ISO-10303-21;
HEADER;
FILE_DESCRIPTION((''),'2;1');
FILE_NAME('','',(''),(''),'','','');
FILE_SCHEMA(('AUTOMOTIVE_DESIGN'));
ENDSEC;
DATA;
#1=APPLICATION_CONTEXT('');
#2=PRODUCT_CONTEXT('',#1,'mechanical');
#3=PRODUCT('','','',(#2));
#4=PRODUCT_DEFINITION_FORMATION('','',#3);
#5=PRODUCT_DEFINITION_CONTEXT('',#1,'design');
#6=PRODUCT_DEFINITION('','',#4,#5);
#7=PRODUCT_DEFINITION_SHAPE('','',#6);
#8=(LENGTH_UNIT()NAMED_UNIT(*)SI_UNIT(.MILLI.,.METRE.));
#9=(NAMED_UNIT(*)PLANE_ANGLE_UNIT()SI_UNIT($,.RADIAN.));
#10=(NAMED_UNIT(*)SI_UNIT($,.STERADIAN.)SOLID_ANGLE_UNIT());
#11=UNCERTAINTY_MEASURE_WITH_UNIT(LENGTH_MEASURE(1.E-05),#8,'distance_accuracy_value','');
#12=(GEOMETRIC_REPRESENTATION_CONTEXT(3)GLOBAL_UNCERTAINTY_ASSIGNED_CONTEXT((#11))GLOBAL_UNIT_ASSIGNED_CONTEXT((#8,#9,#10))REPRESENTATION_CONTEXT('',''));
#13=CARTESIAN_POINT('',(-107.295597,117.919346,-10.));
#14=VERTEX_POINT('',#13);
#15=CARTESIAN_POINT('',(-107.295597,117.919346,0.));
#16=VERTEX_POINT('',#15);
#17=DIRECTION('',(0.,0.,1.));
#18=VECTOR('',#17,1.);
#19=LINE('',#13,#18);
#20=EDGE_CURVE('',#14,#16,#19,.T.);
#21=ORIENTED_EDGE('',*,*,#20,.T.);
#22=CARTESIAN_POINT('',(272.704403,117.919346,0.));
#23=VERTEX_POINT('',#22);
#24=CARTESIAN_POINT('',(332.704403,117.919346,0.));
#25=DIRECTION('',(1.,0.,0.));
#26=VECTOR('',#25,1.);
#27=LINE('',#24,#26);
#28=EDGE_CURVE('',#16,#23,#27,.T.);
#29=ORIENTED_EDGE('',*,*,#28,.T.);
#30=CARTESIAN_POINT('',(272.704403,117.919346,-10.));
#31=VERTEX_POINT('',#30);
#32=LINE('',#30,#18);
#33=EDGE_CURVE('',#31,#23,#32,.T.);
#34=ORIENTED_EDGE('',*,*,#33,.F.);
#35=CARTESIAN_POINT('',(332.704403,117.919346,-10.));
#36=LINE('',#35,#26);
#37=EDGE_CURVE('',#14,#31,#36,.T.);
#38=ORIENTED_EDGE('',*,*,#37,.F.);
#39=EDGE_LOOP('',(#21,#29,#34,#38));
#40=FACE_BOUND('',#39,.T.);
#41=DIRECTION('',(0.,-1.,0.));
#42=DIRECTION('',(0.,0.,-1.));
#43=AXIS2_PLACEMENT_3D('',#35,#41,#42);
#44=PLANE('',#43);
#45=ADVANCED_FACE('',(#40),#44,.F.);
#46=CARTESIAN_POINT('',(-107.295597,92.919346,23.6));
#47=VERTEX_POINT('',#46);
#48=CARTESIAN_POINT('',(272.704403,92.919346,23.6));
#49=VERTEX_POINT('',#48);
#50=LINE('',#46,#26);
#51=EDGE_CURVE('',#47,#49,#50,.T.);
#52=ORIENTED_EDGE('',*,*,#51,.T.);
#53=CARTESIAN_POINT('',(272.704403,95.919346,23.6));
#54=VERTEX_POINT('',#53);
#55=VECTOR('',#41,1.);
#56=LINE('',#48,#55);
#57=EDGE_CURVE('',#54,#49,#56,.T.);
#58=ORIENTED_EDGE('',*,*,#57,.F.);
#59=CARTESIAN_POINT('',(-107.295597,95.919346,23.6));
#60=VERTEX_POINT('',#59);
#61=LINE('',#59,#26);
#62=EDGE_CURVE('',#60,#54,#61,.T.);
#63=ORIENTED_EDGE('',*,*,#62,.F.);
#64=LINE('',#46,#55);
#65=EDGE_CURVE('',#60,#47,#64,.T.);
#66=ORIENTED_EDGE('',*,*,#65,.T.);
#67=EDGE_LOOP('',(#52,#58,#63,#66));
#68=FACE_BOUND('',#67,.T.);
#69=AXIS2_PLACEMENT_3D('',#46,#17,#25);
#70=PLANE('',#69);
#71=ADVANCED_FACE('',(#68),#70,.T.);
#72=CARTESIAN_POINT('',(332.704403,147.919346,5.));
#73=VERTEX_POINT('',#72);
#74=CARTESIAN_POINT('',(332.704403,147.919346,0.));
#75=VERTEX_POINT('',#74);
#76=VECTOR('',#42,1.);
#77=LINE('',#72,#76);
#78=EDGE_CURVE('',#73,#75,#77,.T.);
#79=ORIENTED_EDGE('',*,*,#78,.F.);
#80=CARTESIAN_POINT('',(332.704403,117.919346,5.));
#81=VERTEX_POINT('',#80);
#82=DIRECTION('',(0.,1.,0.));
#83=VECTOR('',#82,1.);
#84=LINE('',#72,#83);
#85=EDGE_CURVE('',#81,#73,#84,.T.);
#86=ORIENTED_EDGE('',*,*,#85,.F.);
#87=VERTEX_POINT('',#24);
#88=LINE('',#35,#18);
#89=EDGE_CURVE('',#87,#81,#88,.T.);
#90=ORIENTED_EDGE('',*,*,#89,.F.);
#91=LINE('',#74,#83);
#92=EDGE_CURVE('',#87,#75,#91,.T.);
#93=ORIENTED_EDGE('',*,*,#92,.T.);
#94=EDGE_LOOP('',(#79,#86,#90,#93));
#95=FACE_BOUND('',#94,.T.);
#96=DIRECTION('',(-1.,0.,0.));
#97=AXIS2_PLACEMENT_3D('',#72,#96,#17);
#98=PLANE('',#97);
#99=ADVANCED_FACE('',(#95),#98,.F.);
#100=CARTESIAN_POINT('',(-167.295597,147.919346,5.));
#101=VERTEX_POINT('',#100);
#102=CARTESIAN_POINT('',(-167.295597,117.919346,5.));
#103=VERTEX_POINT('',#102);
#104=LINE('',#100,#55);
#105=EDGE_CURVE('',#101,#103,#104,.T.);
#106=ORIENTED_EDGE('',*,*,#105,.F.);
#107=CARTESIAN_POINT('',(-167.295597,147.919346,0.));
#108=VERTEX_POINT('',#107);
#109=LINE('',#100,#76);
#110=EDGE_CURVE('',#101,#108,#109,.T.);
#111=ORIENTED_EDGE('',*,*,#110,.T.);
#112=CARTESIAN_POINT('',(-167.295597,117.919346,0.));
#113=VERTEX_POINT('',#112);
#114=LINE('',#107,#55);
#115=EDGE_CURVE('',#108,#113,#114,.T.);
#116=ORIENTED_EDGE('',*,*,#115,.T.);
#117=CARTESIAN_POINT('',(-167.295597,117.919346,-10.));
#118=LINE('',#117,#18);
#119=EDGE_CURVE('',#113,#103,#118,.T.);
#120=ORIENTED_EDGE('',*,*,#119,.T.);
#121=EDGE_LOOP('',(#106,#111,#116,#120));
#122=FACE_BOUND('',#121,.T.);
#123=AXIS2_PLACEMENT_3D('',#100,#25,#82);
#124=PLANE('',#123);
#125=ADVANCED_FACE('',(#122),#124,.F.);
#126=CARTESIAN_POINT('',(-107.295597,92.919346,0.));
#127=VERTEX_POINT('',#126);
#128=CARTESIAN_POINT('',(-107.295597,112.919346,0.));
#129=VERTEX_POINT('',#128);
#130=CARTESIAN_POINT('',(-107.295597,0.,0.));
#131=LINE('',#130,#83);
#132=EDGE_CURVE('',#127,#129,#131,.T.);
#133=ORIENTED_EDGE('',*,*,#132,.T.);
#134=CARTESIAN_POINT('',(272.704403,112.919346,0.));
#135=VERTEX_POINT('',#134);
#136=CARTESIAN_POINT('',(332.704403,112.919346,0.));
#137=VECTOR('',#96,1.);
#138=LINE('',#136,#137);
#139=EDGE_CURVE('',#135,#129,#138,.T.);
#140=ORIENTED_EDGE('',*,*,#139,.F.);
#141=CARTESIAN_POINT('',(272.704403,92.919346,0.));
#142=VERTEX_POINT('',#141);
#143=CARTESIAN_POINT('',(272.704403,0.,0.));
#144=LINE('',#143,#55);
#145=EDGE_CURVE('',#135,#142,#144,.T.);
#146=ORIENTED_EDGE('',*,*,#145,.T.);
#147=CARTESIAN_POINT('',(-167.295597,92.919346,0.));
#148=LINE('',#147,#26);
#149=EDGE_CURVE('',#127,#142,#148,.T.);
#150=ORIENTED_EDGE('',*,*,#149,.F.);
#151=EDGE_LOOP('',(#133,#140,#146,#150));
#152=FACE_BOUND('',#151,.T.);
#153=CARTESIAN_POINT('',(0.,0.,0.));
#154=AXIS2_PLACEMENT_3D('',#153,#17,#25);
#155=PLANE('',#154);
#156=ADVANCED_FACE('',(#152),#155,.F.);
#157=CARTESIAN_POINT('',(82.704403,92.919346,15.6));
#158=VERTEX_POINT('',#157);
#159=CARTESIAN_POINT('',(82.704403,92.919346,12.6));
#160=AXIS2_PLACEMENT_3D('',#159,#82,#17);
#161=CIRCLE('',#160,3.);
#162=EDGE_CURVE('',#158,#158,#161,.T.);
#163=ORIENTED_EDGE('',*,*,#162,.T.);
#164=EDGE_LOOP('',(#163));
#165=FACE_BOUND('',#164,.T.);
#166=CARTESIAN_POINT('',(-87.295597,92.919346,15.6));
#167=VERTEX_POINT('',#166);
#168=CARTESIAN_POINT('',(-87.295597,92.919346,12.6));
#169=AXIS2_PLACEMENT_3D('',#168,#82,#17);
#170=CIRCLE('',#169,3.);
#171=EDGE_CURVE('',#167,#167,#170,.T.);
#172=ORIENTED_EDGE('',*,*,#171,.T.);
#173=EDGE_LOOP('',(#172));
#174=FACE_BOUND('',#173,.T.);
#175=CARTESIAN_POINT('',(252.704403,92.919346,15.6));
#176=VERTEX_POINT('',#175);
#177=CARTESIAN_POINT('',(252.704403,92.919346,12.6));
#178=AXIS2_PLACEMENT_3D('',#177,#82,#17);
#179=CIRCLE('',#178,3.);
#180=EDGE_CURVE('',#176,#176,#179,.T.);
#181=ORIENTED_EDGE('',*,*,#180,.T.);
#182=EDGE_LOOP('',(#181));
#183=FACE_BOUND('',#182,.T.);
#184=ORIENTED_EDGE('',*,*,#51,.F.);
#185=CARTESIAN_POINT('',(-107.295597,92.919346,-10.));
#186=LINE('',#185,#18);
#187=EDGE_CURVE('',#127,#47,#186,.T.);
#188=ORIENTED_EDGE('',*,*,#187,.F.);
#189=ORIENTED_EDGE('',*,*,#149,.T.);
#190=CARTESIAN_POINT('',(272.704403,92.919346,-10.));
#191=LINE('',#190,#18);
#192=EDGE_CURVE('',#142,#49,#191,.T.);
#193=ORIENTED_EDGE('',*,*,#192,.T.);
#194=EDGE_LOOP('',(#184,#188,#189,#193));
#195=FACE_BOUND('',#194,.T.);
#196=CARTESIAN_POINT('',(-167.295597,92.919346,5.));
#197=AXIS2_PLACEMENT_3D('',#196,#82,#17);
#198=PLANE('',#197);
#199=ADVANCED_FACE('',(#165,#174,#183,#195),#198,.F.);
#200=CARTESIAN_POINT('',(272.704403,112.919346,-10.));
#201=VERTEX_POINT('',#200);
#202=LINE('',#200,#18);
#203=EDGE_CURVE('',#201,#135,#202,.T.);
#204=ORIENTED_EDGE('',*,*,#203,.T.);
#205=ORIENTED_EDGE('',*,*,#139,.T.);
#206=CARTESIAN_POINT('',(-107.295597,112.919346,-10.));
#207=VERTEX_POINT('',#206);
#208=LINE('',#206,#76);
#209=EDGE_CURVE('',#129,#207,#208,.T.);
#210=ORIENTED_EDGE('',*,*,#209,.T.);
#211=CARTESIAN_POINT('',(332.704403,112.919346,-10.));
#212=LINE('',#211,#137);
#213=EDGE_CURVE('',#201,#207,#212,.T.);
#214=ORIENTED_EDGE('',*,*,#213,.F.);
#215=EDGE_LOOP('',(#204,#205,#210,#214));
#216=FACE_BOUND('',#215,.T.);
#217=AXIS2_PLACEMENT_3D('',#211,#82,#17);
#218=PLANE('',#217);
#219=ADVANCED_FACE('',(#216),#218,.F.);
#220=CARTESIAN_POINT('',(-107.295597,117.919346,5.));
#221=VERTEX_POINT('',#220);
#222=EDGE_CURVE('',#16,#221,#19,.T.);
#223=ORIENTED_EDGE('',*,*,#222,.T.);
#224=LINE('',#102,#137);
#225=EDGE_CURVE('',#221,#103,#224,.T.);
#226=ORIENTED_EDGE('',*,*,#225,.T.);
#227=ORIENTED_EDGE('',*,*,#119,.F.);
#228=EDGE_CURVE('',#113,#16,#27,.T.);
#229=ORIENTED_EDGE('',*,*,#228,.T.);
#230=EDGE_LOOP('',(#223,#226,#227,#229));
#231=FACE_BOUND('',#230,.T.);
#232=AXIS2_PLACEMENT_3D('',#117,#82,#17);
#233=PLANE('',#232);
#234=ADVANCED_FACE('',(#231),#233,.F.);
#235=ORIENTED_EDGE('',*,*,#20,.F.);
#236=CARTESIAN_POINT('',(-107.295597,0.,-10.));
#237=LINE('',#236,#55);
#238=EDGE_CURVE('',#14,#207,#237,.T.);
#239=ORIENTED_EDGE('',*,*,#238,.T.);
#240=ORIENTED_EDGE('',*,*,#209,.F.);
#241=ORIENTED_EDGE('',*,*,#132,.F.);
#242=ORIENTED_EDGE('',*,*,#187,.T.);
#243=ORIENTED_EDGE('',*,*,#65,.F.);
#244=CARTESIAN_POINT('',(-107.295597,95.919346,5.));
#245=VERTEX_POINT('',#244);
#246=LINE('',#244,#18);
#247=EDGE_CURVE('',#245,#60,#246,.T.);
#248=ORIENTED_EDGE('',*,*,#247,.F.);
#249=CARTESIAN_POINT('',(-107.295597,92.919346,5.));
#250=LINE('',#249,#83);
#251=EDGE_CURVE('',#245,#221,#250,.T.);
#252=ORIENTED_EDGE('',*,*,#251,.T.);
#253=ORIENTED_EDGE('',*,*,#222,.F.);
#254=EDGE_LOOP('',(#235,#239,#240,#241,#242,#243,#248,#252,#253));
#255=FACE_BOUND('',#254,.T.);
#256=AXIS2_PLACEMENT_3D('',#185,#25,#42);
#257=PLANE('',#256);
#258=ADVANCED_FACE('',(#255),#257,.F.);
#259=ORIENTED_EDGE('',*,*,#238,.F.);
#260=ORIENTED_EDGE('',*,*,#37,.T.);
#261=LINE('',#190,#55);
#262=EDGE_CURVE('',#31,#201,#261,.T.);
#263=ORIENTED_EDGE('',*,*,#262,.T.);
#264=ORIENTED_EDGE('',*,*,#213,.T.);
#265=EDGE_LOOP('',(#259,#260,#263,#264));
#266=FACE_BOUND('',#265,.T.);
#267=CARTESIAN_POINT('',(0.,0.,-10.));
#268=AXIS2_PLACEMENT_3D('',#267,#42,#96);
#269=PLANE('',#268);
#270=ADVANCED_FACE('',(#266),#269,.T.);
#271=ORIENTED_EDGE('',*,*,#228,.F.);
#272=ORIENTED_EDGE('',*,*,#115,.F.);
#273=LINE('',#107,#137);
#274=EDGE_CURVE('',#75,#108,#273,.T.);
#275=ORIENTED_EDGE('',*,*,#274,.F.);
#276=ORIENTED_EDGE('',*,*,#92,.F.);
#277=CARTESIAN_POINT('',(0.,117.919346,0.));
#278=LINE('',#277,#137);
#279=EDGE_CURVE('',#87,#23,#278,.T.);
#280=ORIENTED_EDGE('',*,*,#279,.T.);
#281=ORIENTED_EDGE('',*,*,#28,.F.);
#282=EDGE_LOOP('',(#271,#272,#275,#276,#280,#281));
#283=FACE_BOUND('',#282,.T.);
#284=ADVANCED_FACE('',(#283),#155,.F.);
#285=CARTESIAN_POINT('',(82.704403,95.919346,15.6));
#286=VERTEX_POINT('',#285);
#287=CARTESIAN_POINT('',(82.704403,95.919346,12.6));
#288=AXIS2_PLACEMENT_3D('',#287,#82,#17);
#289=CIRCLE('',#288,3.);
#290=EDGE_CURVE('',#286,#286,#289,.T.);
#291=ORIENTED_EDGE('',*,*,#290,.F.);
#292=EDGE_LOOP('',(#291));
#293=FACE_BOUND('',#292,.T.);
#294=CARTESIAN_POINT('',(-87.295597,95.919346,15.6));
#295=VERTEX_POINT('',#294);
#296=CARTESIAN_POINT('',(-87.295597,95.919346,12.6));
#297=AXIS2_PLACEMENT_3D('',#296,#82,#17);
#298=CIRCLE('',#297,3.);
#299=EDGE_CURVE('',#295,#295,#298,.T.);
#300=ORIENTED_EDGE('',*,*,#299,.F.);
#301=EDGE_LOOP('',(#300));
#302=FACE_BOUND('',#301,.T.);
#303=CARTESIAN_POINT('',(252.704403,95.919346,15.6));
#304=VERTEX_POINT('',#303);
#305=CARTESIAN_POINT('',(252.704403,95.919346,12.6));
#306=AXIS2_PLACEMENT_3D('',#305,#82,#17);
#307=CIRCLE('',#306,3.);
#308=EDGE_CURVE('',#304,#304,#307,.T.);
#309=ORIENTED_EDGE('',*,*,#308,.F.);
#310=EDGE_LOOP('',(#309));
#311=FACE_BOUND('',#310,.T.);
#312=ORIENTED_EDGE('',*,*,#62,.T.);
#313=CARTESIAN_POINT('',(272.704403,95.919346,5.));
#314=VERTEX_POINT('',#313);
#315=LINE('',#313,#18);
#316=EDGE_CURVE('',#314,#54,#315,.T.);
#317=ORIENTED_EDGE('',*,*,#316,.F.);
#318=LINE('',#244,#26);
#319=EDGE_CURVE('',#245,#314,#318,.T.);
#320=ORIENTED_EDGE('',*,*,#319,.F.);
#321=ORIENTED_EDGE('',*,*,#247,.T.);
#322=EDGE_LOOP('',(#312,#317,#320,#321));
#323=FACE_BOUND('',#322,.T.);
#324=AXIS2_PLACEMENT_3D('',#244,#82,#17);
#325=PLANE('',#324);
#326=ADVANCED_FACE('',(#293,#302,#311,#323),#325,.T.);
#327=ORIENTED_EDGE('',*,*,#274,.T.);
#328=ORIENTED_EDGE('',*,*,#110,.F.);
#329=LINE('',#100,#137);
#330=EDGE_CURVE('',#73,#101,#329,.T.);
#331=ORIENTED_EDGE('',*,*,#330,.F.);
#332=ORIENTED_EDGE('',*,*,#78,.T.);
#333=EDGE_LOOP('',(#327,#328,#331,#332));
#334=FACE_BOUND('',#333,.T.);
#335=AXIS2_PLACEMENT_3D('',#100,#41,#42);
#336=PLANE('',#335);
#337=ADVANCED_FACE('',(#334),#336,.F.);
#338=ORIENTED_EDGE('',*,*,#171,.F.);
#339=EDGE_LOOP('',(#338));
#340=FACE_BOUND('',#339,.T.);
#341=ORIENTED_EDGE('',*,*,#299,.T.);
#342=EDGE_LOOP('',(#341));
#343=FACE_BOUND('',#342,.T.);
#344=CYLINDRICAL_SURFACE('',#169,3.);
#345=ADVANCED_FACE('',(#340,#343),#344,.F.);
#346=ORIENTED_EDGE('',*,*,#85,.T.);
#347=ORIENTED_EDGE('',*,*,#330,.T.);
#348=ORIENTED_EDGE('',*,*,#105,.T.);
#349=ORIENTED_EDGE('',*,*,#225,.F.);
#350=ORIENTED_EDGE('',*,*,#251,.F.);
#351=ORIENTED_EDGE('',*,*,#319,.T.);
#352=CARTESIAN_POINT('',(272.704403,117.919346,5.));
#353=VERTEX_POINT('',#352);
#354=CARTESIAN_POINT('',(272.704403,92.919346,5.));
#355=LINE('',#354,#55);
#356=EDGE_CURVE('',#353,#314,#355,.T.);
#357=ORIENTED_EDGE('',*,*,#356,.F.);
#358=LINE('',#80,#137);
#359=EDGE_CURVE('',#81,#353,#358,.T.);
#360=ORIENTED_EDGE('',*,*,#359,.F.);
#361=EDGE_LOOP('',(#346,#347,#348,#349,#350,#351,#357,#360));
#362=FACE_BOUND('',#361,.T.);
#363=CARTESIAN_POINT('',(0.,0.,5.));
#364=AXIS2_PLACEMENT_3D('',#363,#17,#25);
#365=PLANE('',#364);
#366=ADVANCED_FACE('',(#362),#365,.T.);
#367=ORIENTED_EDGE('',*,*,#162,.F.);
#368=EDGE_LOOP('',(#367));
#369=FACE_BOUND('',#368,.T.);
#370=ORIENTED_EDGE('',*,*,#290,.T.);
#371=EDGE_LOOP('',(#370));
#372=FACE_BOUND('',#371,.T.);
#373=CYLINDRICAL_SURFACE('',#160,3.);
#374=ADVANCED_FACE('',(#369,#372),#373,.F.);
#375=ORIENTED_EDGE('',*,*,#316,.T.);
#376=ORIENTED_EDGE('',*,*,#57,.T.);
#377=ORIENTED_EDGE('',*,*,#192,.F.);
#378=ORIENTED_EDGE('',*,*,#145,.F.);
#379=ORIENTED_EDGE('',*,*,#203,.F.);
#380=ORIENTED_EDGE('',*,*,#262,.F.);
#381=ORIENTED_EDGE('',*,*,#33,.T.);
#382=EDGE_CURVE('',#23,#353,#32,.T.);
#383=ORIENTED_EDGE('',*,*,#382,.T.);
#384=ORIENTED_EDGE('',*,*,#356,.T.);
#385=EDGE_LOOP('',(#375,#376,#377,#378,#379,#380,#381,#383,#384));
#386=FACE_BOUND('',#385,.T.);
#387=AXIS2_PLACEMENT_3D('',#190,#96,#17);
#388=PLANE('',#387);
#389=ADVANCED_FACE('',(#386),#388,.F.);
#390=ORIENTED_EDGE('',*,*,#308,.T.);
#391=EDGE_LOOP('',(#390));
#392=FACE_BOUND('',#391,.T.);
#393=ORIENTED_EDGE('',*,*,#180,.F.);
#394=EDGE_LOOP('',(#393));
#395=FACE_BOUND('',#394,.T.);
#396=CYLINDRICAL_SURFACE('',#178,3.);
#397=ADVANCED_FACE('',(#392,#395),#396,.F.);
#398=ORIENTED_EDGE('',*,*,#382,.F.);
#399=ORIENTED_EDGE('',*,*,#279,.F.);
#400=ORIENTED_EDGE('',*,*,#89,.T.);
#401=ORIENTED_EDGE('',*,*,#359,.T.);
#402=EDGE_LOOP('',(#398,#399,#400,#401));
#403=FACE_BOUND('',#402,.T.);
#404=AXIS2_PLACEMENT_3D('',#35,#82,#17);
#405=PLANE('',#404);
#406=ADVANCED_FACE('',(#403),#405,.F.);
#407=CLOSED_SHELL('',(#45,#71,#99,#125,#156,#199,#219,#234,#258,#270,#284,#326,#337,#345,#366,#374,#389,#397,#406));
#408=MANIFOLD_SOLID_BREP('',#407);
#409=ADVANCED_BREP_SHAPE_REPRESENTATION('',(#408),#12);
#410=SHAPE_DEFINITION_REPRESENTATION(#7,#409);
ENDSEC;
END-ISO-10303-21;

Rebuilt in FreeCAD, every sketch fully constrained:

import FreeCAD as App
import Part
import Sketcher

doc = App.newDocument("Part")
body = doc.addObject("PartDesign::Body", "Body")

# Sketch on XY plane
sketch1 = body.newObject("Sketcher::SketchObject", "Sketch")
sketch1.AttachmentSupport = (doc.getObject("XY_Plane"), [""])
sketch1.MapMode = "FlatFace"
sketch1.addGeometry([
    Part.LineSegment(App.Vector(-167, 148, 0), App.Vector(-167, 93, 0)),
    Part.LineSegment(App.Vector(-167, 93, 0), App.Vector(333, 93, 0)),
    Part.LineSegment(App.Vector(333, 93, 0), App.Vector(333, 148, 0)),
    Part.LineSegment(App.Vector(333, 148, 0), App.Vector(-167, 148, 0)),
], False)
sketch1.addConstraint([
    Sketcher.Constraint("Coincident", 0, 2, 1, 1),
    Sketcher.Constraint("Coincident", 1, 2, 2, 1),
    Sketcher.Constraint("Coincident", 2, 2, 3, 1),
    Sketcher.Constraint("Coincident", 3, 2, 0, 1),
    Sketcher.Constraint("Vertical", 0),
    Sketcher.Constraint("Horizontal", 1),
    Sketcher.Constraint("Vertical", 2),
    Sketcher.Constraint("Horizontal", 3),
    Sketcher.Constraint("DistanceX", 1, 1, 1, 2, 500.0),
    Sketcher.Constraint("DistanceY", 0, 2, 0, 1, 55.0),
    Sketcher.Constraint("DistanceX", 0, 2, -1, 1, 167.295597),
    Sketcher.Constraint("DistanceY", -1, 1, 0, 2, 92.919346),
])
pad1 = body.newObject("PartDesign::Pad", "Pad")
pad1.Profile = sketch1
pad1.Length = 5

# Sketch on XY plane
sketch2 = body.newObject("Sketcher::SketchObject", "Sketch001")
sketch2.AttachmentSupport = (doc.getObject("XY_Plane"), [""])
sketch2.MapMode = "FlatFace"
sketch2.addGeometry([
    Part.LineSegment(App.Vector(333, 118, 0), App.Vector(333, 113, 0)),
    Part.LineSegment(App.Vector(333, 113, 0), App.Vector(-167, 113, 0)),
    Part.LineSegment(App.Vector(-167, 113, 0), App.Vector(-167, 118, 0)),
    Part.LineSegment(App.Vector(-167, 118, 0), App.Vector(333, 118, 0)),
], False)
sketch2.addConstraint([
    Sketcher.Constraint("Coincident", 0, 2, 1, 1),
    Sketcher.Constraint("Coincident", 1, 2, 2, 1),
    Sketcher.Constraint("Coincident", 2, 2, 3, 1),
    Sketcher.Constraint("Coincident", 3, 2, 0, 1),
    Sketcher.Constraint("Vertical", 0),
    Sketcher.Constraint("Horizontal", 1),
    Sketcher.Constraint("Vertical", 2),
    Sketcher.Constraint("Horizontal", 3),
    Sketcher.Constraint("DistanceX", 1, 2, 1, 1, 500.0),
    Sketcher.Constraint("DistanceY", 0, 2, 0, 1, 5.0),
    Sketcher.Constraint("DistanceX", -1, 1, 0, 2, 332.704403),
    Sketcher.Constraint("DistanceY", -1, 1, 0, 2, 112.919346),
])
pad2 = body.newObject("PartDesign::Pad", "Pad001")
pad2.Profile = sketch2
pad2.Length = 10
pad2.Reversed = True

# Sketch on XY plane
sketch3 = body.newObject("Sketcher::SketchObject", "Sketch002")
sketch3.AttachmentSupport = (doc.getObject("XY_Plane"), [""])
sketch3.MapMode = "FlatFace"
sketch3.AttachmentOffset = App.Placement(App.Vector(0, 0, 5), App.Rotation())
sketch3.addGeometry([
    Part.LineSegment(App.Vector(273, 118, 0), App.Vector(273, 93, 0)),  # 0
    Part.LineSegment(App.Vector(273, 93, 0), App.Vector(333, 93, 0)),  # 1
    Part.LineSegment(App.Vector(333, 93, 0), App.Vector(333, 118, 0)),  # 2
    Part.LineSegment(App.Vector(333, 118, 0), App.Vector(273, 118, 0)),  # 3
    Part.LineSegment(App.Vector(-167, 118, 0), App.Vector(-167, 93, 0)),  # 4
    Part.LineSegment(App.Vector(-167, 93, 0), App.Vector(-107, 93, 0)),  # 5
    Part.LineSegment(App.Vector(-107, 93, 0), App.Vector(-107, 118, 0)),  # 6
    Part.LineSegment(App.Vector(-107, 118, 0), App.Vector(-167, 118, 0)),  # 7
], False)
sketch3.addConstraint([
    Sketcher.Constraint("Coincident", 0, 2, 1, 1),
    Sketcher.Constraint("Coincident", 1, 2, 2, 1),
    Sketcher.Constraint("Coincident", 2, 2, 3, 1),
    Sketcher.Constraint("Coincident", 3, 2, 0, 1),
    Sketcher.Constraint("Coincident", 4, 2, 5, 1),
    Sketcher.Constraint("Coincident", 5, 2, 6, 1),
    Sketcher.Constraint("Coincident", 6, 2, 7, 1),
    Sketcher.Constraint("Coincident", 7, 2, 4, 1),
    Sketcher.Constraint("Vertical", 0),
    Sketcher.Constraint("Horizontal", 1),
    Sketcher.Constraint("Vertical", 2),
    Sketcher.Constraint("Horizontal", 3),
    Sketcher.Constraint("Vertical", 4),
    Sketcher.Constraint("Horizontal", 5),
    Sketcher.Constraint("Vertical", 6),
    Sketcher.Constraint("Horizontal", 7),
    Sketcher.Constraint("Horizontal", 1, 2, 4, 2),
    Sketcher.Constraint("Horizontal", 3, 2, 6, 2),
    Sketcher.Constraint("Equal", 3, 5),
    Sketcher.Constraint("DistanceX", 1, 1, 1, 2, 60.0),
    Sketcher.Constraint("DistanceY", 0, 2, 0, 1, 25.0),
    Sketcher.Constraint("DistanceX", 4, 2, 0, 2, 440.0),
    Sketcher.Constraint("DistanceX", -1, 1, 0, 2, 272.704403),
    Sketcher.Constraint("DistanceY", -1, 1, 0, 2, 92.919346),
])
pocket1 = body.newObject("PartDesign::Pocket", "Pocket")
pocket1.Profile = sketch3
pocket1.Type = "ThroughAll"

# Sketch on YZ plane
sketch4 = body.newObject("Sketcher::SketchObject", "Sketch003")
sketch4.AttachmentSupport = (doc.getObject("YZ_Plane"), [""])
sketch4.MapMode = "FlatFace"
sketch4.AttachmentOffset = App.Placement(App.Vector(0, 0, 272.704403), App.Rotation())
sketch4.addGeometry([
    Part.LineSegment(App.Vector(95.9, 23.6, 0), App.Vector(92.9, 23.6, 0)),
    Part.LineSegment(App.Vector(92.9, 23.6, 0), App.Vector(92.9, 5, 0)),
    Part.LineSegment(App.Vector(92.9, 5, 0), App.Vector(95.9, 5, 0)),
    Part.LineSegment(App.Vector(95.9, 5, 0), App.Vector(95.9, 23.6, 0)),
], False)
sketch4.addConstraint([
    Sketcher.Constraint("Coincident", 0, 2, 1, 1),
    Sketcher.Constraint("Coincident", 1, 2, 2, 1),
    Sketcher.Constraint("Coincident", 2, 2, 3, 1),
    Sketcher.Constraint("Coincident", 3, 2, 0, 1),
    Sketcher.Constraint("Horizontal", 0),
    Sketcher.Constraint("Vertical", 1),
    Sketcher.Constraint("Horizontal", 2),
    Sketcher.Constraint("Vertical", 3),
    Sketcher.Constraint("DistanceX", 0, 2, 0, 1, 3.0),
    Sketcher.Constraint("DistanceY", 1, 2, 1, 1, 18.6),
    Sketcher.Constraint("DistanceY", -1, 1, 1, 2, 5.0),
    Sketcher.Constraint("DistanceX", -1, 1, 0, 2, 92.919346),
])
pad3 = body.newObject("PartDesign::Pad", "Pad002")
pad3.Profile = sketch4
pad3.Length = 380
pad3.Reversed = True

# Sketch on XZ plane
sketch5 = body.newObject("Sketcher::SketchObject", "Sketch004")
sketch5.AttachmentSupport = (doc.getObject("XZ_Plane"), [""])
sketch5.MapMode = "FlatFace"
sketch5.AttachmentOffset = App.Placement(App.Vector(0, 0, -95.919346), App.Rotation())
sketch5.addGeometry([
    Part.Circle(App.Vector(-87.3, 12.6, 0), App.Vector(0, 0, 1), 3),
    Part.Circle(App.Vector(82.7, 12.6, 0), App.Vector(0, 0, 1), 3),
    Part.Circle(App.Vector(252.7, 12.6, 0), App.Vector(0, 0, 1), 3),
], False)
sketch5.addConstraint([
    Sketcher.Constraint("Equal", 0, 1),
    Sketcher.Constraint("Equal", 1, 2),
    Sketcher.Constraint("Horizontal", 0, 3, 1, 3),
    Sketcher.Constraint("Horizontal", 1, 3, 2, 3),
    Sketcher.Constraint("Diameter", 0, 6.0),
    Sketcher.Constraint("DistanceX", 0, 3, 1, 3, 170.0),
    Sketcher.Constraint("DistanceX", 1, 3, 2, 3, 170.0),
    Sketcher.Constraint("DistanceY", -1, 1, 0, 3, 12.6),
    Sketcher.Constraint("DistanceX", 0, 3, -1, 1, 87.295597),
])
pocket2 = body.newObject("PartDesign::Pocket", "Pocket001")
pocket2.Profile = sketch5
pocket2.Type = "ThroughAll"
pocket2.Reversed = True

doc.recompute()
